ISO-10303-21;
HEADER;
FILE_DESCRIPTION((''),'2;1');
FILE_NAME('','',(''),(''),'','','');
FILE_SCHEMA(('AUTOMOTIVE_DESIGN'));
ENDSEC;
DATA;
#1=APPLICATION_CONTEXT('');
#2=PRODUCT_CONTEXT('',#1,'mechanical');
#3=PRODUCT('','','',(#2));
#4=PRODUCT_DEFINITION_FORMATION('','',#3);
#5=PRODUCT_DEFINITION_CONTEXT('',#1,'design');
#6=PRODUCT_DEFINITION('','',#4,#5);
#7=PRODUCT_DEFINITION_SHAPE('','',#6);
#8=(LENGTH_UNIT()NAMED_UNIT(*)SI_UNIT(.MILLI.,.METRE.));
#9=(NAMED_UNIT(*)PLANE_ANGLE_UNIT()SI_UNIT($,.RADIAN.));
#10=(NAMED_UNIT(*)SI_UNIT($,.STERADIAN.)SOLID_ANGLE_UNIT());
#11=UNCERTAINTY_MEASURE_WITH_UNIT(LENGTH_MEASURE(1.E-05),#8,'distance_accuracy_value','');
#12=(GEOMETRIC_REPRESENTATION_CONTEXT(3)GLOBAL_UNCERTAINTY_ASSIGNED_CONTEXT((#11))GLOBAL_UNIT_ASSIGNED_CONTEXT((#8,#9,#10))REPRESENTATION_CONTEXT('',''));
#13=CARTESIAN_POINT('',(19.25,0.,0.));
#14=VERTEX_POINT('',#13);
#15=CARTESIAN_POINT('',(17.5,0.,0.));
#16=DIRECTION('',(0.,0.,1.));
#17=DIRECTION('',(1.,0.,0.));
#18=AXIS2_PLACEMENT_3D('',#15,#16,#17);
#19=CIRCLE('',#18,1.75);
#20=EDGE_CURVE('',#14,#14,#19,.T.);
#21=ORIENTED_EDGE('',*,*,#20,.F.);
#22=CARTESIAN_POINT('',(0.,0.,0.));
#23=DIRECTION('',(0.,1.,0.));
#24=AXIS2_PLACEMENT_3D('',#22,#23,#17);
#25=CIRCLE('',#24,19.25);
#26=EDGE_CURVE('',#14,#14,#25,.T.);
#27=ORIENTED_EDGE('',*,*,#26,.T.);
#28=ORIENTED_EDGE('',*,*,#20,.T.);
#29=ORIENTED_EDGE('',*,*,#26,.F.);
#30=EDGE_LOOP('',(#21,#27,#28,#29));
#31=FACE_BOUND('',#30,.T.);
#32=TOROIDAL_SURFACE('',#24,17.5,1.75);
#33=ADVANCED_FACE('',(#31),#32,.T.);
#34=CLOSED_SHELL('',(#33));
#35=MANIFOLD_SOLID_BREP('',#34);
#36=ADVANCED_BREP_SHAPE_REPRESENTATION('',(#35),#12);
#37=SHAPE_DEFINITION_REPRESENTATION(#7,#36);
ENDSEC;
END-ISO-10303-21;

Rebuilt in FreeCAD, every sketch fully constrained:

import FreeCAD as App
import Part
import Sketcher
Q = App.Units.Quantity

doc = App.newDocument("Part")
params = doc.addObject("Spreadsheet::Sheet", "Params")
for row, (alias, value) in enumerate([
    ("sketch1_diameter", "3.5 mm"),
    ("revolution_angle", "360 deg"),
], start=1):
    params.set(f"A{row}", alias)
    params.set(f"B{row}", "=" + value)
    params.setAlias(f"B{row}", alias)

body = doc.addObject("PartDesign::Body", "Body")

# Sketch on XY plane
sketch1 = doc.addObject("Sketcher::SketchObject", "Sketch")
body.addObject(sketch1)
sketch1.AttachmentSupport = (doc.XY_Plane, [""])
sketch1.MapMode = "FlatFace"
sketch1.addGeometry(Part.Circle(App.Vector(17.5, 0, 0), App.Vector(0, 0, 1), 1.75), False)
sketch1.addConstraint([
    Sketcher.Constraint("PointOnObject", 0, 3, -1),
    Sketcher.Constraint("Diameter", 0, Q("3.5 mm")),
    Sketcher.Constraint("DistanceX", -1, 1, 0, 3, Q("17.5 mm")),
])
sketch1.setExpression("Constraints[1]", "Params.sketch1_diameter")
revolution = doc.addObject("PartDesign::Revolution", "Revolution")
body.addObject(revolution)
revolution.Profile = sketch1
revolution.ReferenceAxis = (sketch1, ["V_Axis"])
revolution.setExpression("Angle", "Params.revolution_angle")

doc.recompute()
